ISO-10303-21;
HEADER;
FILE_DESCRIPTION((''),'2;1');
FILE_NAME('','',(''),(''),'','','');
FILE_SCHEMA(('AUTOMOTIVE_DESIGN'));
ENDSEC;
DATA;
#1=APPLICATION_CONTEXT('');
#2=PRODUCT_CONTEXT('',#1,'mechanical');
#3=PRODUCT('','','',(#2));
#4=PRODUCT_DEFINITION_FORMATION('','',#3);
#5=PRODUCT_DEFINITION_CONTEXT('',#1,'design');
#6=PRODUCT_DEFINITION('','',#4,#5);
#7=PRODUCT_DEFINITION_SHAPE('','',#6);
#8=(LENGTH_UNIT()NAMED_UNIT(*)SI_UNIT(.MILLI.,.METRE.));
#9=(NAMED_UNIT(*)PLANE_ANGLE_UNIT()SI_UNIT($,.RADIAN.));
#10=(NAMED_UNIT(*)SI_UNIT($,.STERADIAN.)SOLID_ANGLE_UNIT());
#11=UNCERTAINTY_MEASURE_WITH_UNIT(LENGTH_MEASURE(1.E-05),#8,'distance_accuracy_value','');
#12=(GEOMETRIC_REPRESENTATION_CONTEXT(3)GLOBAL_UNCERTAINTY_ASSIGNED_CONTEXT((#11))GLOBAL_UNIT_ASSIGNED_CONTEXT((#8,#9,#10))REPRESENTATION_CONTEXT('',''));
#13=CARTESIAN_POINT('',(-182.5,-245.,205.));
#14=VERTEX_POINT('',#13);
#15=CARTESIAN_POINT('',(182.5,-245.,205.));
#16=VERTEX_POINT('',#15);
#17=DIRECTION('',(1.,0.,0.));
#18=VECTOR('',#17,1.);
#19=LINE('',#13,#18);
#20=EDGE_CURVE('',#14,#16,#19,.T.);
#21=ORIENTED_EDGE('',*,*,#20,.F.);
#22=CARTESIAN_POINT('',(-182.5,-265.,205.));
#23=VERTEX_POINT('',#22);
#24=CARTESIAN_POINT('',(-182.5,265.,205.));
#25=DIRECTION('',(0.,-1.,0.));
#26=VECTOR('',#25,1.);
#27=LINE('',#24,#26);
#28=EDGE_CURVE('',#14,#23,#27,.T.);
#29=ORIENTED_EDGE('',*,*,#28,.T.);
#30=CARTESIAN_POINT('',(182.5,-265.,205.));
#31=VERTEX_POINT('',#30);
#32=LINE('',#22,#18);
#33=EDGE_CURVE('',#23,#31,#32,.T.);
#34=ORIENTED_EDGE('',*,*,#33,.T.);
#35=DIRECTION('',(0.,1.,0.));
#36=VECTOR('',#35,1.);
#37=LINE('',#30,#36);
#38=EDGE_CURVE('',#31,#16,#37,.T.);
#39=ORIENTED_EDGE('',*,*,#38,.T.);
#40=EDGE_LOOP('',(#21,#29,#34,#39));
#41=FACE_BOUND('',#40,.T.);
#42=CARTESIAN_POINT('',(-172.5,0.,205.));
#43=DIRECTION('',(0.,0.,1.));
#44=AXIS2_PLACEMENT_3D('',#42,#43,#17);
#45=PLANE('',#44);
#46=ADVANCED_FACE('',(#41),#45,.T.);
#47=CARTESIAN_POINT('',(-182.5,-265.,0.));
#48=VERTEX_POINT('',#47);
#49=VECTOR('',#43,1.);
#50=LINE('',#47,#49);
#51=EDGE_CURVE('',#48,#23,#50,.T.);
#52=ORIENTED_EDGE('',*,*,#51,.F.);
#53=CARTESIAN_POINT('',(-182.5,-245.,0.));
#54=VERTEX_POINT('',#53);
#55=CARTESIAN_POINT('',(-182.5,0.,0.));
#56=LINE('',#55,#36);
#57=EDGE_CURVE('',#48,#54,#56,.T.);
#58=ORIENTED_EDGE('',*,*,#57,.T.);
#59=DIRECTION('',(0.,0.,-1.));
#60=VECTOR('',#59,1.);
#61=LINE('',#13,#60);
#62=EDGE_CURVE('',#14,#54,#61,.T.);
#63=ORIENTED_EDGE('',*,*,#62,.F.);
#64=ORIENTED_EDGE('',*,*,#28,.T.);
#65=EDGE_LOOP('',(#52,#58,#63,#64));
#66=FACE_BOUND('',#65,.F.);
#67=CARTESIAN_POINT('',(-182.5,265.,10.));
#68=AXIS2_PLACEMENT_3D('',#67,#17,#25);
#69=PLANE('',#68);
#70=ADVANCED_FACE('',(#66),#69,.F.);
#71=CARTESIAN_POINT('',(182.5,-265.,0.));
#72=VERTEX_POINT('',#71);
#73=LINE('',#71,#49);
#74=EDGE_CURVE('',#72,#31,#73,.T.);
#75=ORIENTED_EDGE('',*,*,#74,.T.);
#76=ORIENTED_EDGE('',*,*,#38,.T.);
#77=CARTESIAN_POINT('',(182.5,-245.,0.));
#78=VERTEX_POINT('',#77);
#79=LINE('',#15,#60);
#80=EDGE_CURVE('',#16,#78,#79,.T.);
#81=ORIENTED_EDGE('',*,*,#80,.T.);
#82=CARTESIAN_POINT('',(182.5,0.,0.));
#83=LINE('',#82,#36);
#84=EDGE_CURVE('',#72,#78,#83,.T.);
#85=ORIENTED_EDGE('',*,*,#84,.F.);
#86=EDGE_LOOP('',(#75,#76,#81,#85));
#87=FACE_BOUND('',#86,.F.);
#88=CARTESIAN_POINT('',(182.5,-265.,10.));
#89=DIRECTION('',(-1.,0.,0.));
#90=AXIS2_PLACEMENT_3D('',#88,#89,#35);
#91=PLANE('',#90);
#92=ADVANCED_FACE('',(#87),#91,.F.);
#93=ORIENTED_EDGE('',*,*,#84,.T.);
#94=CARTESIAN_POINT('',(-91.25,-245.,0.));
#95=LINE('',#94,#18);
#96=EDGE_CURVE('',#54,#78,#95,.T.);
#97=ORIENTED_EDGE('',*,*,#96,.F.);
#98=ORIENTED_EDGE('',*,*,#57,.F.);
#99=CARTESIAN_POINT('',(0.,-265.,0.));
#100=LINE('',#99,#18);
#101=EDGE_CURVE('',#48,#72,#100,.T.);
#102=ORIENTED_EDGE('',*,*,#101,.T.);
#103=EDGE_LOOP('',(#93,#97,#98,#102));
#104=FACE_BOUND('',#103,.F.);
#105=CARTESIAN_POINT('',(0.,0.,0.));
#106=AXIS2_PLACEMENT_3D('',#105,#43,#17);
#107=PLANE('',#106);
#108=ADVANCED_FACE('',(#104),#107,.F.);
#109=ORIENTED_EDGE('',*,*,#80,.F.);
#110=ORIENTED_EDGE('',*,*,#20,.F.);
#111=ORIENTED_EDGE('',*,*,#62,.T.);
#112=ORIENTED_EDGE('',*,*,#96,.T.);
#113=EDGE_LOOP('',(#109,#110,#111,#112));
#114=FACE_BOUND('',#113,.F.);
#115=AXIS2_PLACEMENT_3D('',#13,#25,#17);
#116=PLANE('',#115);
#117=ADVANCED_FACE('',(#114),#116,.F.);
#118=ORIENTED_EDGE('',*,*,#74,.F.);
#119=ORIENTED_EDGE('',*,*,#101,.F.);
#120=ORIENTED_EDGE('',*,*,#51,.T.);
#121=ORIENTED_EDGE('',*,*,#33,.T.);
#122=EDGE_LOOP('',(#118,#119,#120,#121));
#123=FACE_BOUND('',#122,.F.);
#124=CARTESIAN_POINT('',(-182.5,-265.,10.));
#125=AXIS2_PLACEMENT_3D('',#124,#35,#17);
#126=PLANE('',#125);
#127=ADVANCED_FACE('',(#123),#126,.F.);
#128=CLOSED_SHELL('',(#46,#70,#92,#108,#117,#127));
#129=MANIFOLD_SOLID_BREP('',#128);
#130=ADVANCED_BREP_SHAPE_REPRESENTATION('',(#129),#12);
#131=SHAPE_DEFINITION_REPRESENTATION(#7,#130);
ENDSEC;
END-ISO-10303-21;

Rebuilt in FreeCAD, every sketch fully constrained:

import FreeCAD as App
import Part
import Sketcher

V = App.Vector


def add_polygon(sketch, points):
    """Adds a closed chain of lines whose ends are joined by coincident constraints."""
    first, n = sketch.GeometryCount, len(points)
    for a, b in zip(points, points[1:] + points[:1]):
        sketch.addGeometry(Part.LineSegment(App.Vector(*a, 0), App.Vector(*b, 0)), False)
    for i in range(n):
        sketch.addConstraint(Sketcher.Constraint("Coincident", first + i, 2, first + (i + 1) % n, 1))

doc = App.newDocument("Part")
body = doc.addObject("PartDesign::Body", "Body")

sketch1 = body.newObject("Sketcher::SketchObject", "Sketch")
sketch1.AttachmentSupport = (doc.getObject("XY_Plane"), [""])
sketch1.MapMode = "FlatFace"
add_polygon(sketch1, [(-182, 265), (-182, -265), (182, -265), (182, 265)])
sketch1.addConstraint(Sketcher.Constraint("Vertical", 0))
sketch1.addConstraint(Sketcher.Constraint("Horizontal", 1))
sketch1.addConstraint(Sketcher.Constraint("Vertical", 2))
sketch1.addConstraint(Sketcher.Constraint("Horizontal", 3))
sketch1.addConstraint(Sketcher.Constraint("Symmetric", 0, 2, 2, 2, -1, 1))
sketch1.addConstraint(Sketcher.Constraint("DistanceX", 1, 1, 1, 2, 365.0))
sketch1.addConstraint(Sketcher.Constraint("DistanceY", 0, 2, 0, 1, 530.0))
pad1 = body.newObject("PartDesign::Pad", "Pad")
pad1.Profile = sketch1
pad1.Length = 10

sketch2 = body.newObject("Sketcher::SketchObject", "Sketch001")
sketch2.AttachmentSupport = (doc.getObject("XY_Plane"), [""])
sketch2.MapMode = "FlatFace"
sketch2.AttachmentOffset = App.Placement(V(0, 0, 10), App.Rotation())
add_polygon(sketch2, [(-182, 265), (-182, -265), (182, -265), (182, 265)])
add_polygon(sketch2, [(-162, -245), (-162, 245), (162, 245), (162, -245)])
sketch2.addConstraint(Sketcher.Constraint("Vertical", 0))
sketch2.addConstraint(Sketcher.Constraint("Horizontal", 1))
sketch2.addConstraint(Sketcher.Constraint("Vertical", 2))
sketch2.addConstraint(Sketcher.Constraint("Horizontal", 3))
sketch2.addConstraint(Sketcher.Constraint("Vertical", 4))
sketch2.addConstraint(Sketcher.Constraint("Horizontal", 5))
sketch2.addConstraint(Sketcher.Constraint("Vertical", 6))
sketch2.addConstraint(Sketcher.Constraint("Horizontal", 7))
sketch2.addConstraint(Sketcher.Constraint("Symmetric", 0, 2, 2, 2, -1, 1))
sketch2.addConstraint(Sketcher.Constraint("Symmetric", 4, 2, 6, 2, -1, 1))
sketch2.addConstraint(Sketcher.Constraint("DistanceX", 1, 1, 1, 2, 365.0))
sketch2.addConstraint(Sketcher.Constraint("DistanceX", 5, 1, 5, 2, 325.0))
sketch2.addConstraint(Sketcher.Constraint("DistanceY", 0, 2, 0, 1, 530.0))
sketch2.addConstraint(Sketcher.Constraint("DistanceY", 4, 1, 4, 2, 490.0))
pad2 = body.newObject("PartDesign::Pad", "Pad001")
pad2.Profile = sketch2
pad2.Length = 195

sketch3 = body.newObject("Sketcher::SketchObject", "Sketch002")
sketch3.AttachmentSupport = (doc.getObject("XY_Plane"), [""])
sketch3.MapMode = "FlatFace"
sketch3.AttachmentOffset = App.Placement(V(0, 0, 205), App.Rotation())
add_polygon(sketch3, [(-182, 265), (-182, -245), (182, -245), (182, 265)])
sketch3.addConstraint(Sketcher.Constraint("Vertical", 0))
sketch3.addConstraint(Sketcher.Constraint("Horizontal", 1))
sketch3.addConstraint(Sketcher.Constraint("Vertical", 2))
sketch3.addConstraint(Sketcher.Constraint("Horizontal", 3))
sketch3.addConstraint(Sketcher.Constraint("DistanceX", 1, 1, 1, 2, 365.0))
sketch3.addConstraint(Sketcher.Constraint("DistanceY", 0, 2, 0, 1, 510.0))
sketch3.addConstraint(Sketcher.Constraint("DistanceY", 0, 2, -1, 1, 245.0))
sketch3.addConstraint(Sketcher.Constraint("DistanceX", 0, 2, -1, 1, 182.5))
pocket1 = body.newObject("PartDesign::Pocket", "Pocket")
pocket1.Profile = sketch3
pocket1.Type = "ThroughAll"

doc.recompute()
